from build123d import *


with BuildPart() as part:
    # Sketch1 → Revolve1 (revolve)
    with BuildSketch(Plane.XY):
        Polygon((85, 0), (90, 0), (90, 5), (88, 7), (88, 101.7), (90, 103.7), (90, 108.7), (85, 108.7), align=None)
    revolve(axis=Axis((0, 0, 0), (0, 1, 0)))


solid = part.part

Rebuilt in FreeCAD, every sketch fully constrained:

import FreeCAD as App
import Part
import Sketcher

V = App.Vector
Q = App.Units.Quantity

doc = App.newDocument("Part")
body = doc.addObject("PartDesign::Body", "Body")

sketch1 = doc.addObject("Sketcher::SketchObject", "Sketch")
body.addObject(sketch1)
sketch1.AttachmentSupport = (doc.XY_Plane, [""])
sketch1.MapMode = "FlatFace"
sketch1.addGeometry([
    Part.LineSegment(V(85, 0, 0), V(90, 0, 0)),
    Part.LineSegment(V(90, 0, 0), V(90, 5, 0)),
    Part.LineSegment(V(90, 5, 0), V(88, 7, 0)),
    Part.LineSegment(V(88, 7, 0), V(88, 101.7, 0)),
    Part.LineSegment(V(88, 101.7, 0), V(90, 103.7, 0)),
    Part.LineSegment(V(90, 103.7, 0), V(90, 108.7, 0)),
    Part.LineSegment(V(90, 108.7, 0), V(85, 108.7, 0)),
    Part.LineSegment(V(85, 108.7, 0), V(85, 0, 0)),
], False)
sketch1.addConstraint([
    Sketcher.Constraint("Coincident", 0, 2, 1, 1),
    Sketcher.Constraint("Coincident", 1, 2, 2, 1),
    Sketcher.Constraint("Coincident", 2, 2, 3, 1),
    Sketcher.Constraint("Coincident", 3, 2, 4, 1),
    Sketcher.Constraint("Coincident", 4, 2, 5, 1),
    Sketcher.Constraint("Coincident", 5, 2, 6, 1),
    Sketcher.Constraint("Coincident", 6, 2, 7, 1),
    Sketcher.Constraint("Coincident", 7, 2, 0, 1),
    Sketcher.Constraint("Horizontal", 0),
    Sketcher.Constraint("Vertical", 1),
    Sketcher.Constraint("Vertical", 3),
    Sketcher.Constraint("Vertical", 5),
    Sketcher.Constraint("Horizontal", 6),
    Sketcher.Constraint("Vertical", 7),
    Sketcher.Constraint("PointOnObject", 0, 2, -1),
    Sketcher.Constraint("Perpendicular", 2, 4),
    Sketcher.Constraint("Vertical", 1, 2, 4, 2),
    Sketcher.Constraint("Equal", 6, 1),
    Sketcher.Constraint("Equal", 1, 5),
    Sketcher.Constraint("Equal", 2, 4),
    Sketcher.Constraint("DistanceX", 0, 1, 0, 2, Q("5 mm")),
    Sketcher.Constraint("DistanceY", 3, 1, 3, 2, Q("94.7 mm")),
    Sketcher.Constraint("DistanceY", 7, 2, 7, 1, Q("108.7 mm")),
    Sketcher.Constraint("DistanceX", -1, 1, 0, 2, Q("90 mm")),
])
revolution = doc.addObject("PartDesign::Revolution", "Revolution")
body.addObject(revolution)
revolution.Profile = sketch1
revolution.ReferenceAxis = (sketch1, ["V_Axis"])
revolution.Angle = 360

doc.recompute()
